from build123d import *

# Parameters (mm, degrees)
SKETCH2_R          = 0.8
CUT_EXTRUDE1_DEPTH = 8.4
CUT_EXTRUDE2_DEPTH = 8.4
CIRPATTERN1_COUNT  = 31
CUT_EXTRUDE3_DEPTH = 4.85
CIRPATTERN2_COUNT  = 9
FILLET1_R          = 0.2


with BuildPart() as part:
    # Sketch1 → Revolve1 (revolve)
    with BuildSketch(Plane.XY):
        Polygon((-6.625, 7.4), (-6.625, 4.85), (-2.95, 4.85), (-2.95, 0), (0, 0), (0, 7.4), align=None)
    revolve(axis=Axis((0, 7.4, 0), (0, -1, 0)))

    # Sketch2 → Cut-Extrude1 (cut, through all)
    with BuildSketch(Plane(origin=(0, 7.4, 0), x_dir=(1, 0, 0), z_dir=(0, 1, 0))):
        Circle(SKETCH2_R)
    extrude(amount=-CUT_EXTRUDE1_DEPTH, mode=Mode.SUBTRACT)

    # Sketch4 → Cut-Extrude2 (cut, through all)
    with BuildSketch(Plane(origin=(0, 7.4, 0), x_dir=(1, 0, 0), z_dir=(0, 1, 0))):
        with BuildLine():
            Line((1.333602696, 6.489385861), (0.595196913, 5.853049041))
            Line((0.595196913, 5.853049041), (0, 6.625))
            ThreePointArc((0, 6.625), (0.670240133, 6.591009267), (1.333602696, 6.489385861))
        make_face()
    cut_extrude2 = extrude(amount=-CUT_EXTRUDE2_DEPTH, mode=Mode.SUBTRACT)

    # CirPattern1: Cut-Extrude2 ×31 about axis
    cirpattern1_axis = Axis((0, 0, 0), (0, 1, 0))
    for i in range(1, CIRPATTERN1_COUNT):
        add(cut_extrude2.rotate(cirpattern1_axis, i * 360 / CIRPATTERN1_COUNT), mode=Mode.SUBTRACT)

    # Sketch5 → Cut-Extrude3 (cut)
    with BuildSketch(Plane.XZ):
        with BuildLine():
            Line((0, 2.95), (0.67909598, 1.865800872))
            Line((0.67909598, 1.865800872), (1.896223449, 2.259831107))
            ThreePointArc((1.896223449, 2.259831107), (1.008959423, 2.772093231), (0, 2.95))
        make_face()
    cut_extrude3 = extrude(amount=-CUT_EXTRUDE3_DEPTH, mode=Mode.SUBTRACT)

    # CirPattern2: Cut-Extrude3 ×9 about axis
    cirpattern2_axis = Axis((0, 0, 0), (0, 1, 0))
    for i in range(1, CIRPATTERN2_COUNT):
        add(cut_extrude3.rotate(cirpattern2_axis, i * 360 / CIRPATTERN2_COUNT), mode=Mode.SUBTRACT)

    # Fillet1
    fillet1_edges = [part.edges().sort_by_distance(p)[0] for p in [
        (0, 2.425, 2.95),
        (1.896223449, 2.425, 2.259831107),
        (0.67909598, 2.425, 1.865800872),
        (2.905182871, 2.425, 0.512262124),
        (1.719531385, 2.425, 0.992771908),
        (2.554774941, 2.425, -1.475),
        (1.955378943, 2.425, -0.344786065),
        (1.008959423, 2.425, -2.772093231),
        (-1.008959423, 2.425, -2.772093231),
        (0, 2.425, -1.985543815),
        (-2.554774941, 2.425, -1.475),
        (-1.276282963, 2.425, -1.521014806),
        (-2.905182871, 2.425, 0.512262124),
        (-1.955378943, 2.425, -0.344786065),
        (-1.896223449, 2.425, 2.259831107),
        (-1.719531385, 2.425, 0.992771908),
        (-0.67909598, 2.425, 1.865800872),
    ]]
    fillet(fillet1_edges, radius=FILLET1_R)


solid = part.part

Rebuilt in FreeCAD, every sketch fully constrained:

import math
import FreeCAD as App
import Part
import Sketcher


def edges_at(feature, points):
    """Names of the edges that pass closest to the given points."""
    edges = feature.Shape.Edges
    near = lambda p: min(range(len(edges)), key=lambda i: edges[i].distToShape(Part.Vertex(*p))[0])
    return sorted({f"Edge{near(p) + 1}" for p in points})

doc = App.newDocument("Part")
body = doc.addObject("PartDesign::Body", "Body")

sketch1 = body.newObject("Sketcher::SketchObject", "Sketch")
sketch1.AttachmentSupport = (doc.getObject("XY_Plane"), [""])
sketch1.MapMode = "FlatFace"
sketch1.addGeometry([
    Part.LineSegment(App.Vector(-6.6, 7.4, 0), App.Vector(-6.6, 4.8, 0)),
    Part.LineSegment(App.Vector(-6.6, 4.8, 0), App.Vector(-3, 4.8, 0)),
    Part.LineSegment(App.Vector(-3, 4.8, 0), App.Vector(-3, 0, 0)),
    Part.LineSegment(App.Vector(-3, 0, 0), App.Vector(0, 0, 0)),
    Part.LineSegment(App.Vector(0, 0, 0), App.Vector(0, 7.4, 0)),
    Part.LineSegment(App.Vector(0, 7.4, 0), App.Vector(-6.6, 7.4, 0)),
], False)
sketch1.addConstraint([
    Sketcher.Constraint("Coincident", 0, 2, 1, 1),
    Sketcher.Constraint("Coincident", 1, 2, 2, 1),
    Sketcher.Constraint("Coincident", 2, 2, 3, 1),
    Sketcher.Constraint("Coincident", 3, 2, 4, 1),
    Sketcher.Constraint("Coincident", 4, 2, 5, 1),
    Sketcher.Constraint("Coincident", 5, 2, 0, 1),
    Sketcher.Constraint("Vertical", 0),
    Sketcher.Constraint("Horizontal", 1),
    Sketcher.Constraint("Vertical", 2),
    Sketcher.Constraint("Horizontal", 3),
    Sketcher.Constraint("Vertical", 4),
    Sketcher.Constraint("Horizontal", 5),
    Sketcher.Constraint("Coincident", 3, 2, -1, 1),
    Sketcher.Constraint("DistanceY", 4, 1, 4, 2, 7.4),
    Sketcher.Constraint("DistanceX", 3, 1, 3, 2, 2.95),
    Sketcher.Constraint("DistanceY", 0, 2, 0, 1, 2.55),
    Sketcher.Constraint("DistanceX", 1, 1, 1, 2, 3.675),
])
revolution = body.newObject("PartDesign::Revolution", "Revolution")
revolution.Profile = sketch1
revolution.ReferenceAxis = (sketch1, ["V_Axis"])
revolution.Angle = 360

sketch2 = body.newObject("Sketcher::SketchObject", "Sketch001")
sketch2.AttachmentSupport = (doc.getObject("XZ_Plane"), [""])
sketch2.MapMode = "FlatFace"
sketch2.AttachmentOffset = App.Placement(App.Vector(0, 0, -7.4), App.Rotation())
sketch2.addGeometry(Part.Circle(App.Vector(0, 0, 0), App.Vector(0, 0, 1), 0.8), False)
sketch2.addConstraint([
    Sketcher.Constraint("Coincident", 0, 3, -1, 1),
    Sketcher.Constraint("Diameter", 0, 1.6),
])
pocket1 = body.newObject("PartDesign::Pocket", "Pocket")
pocket1.Profile = sketch2
pocket1.Type = "ThroughAll"
pocket1.Reversed = True

sketch3 = body.newObject("Sketcher::SketchObject", "Sketch002")
sketch3.AttachmentSupport = (doc.getObject("XZ_Plane"), [""])
sketch3.MapMode = "FlatFace"
sketch3.AttachmentOffset = App.Placement(App.Vector(0, 0, -7.4), App.Rotation())
sketch3.addGeometry([
    Part.LineSegment(App.Vector(0.6, -5.9, 0), App.Vector(1.3, -6.5, 0)),
    Part.ArcOfCircle(Part.Circle(App.Vector(0, 0, 0), App.Vector(0, 0, 1), 6.6), math.radians(-90), math.radians(-78.39)),
    Part.LineSegment(App.Vector(0, -6.6, 0), App.Vector(0.6, -5.9, 0)),
], False)
sketch3.addConstraint([
    Sketcher.Constraint("Coincident", 0, 2, 1, 2),
    Sketcher.Constraint("Coincident", 1, 1, 2, 1),
    Sketcher.Constraint("Coincident", 2, 2, 0, 1),
    Sketcher.Constraint("Coincident", 1, 3, -1, 1),
    Sketcher.Constraint("PointOnObject", 1, 1, -2),
    Sketcher.Constraint("Equal", 0, 2),
    Sketcher.Constraint("Radius", 1, 6.625),
    Sketcher.Constraint("DistanceY", 2, 2, -1, 1, 5.853049),
    Sketcher.Constraint("Distance", 0, 0.974765),
])
pocket2 = body.newObject("PartDesign::Pocket", "Pocket001")
pocket2.Profile = sketch3
pocket2.Type = "ThroughAll"
pocket2.Reversed = True
doc.recompute()

polarpattern = body.newObject("PartDesign::PolarPattern", "PolarPattern")
polarpattern.Originals = [pocket2]
polarpattern.Axis = (doc.getObject("Y_Axis"), [""])
polarpattern.Angle = 360
polarpattern.Occurrences = 31
body.Tip = polarpattern

sketch4 = body.newObject("Sketcher::SketchObject", "Sketch003")
sketch4.AttachmentSupport = (doc.getObject("XZ_Plane"), [""])
sketch4.MapMode = "FlatFace"
sketch4.addGeometry([
    Part.LineSegment(App.Vector(0, 3, 0), App.Vector(0.7, 1.9, 0)),
    Part.LineSegment(App.Vector(0.7, 1.9, 0), App.Vector(1.9, 2.3, 0)),
    Part.ArcOfCircle(Part.Circle(App.Vector(0, 0, 0), App.Vector(0, 0, 1), 3), math.radians(50), math.radians(90)),
], False)
sketch4.addConstraint([
    Sketcher.Constraint("Coincident", 0, 2, 1, 1),
    Sketcher.Constraint("Coincident", 1, 2, 2, 1),
    Sketcher.Constraint("Coincident", 2, 2, 0, 1),
    Sketcher.Constraint("Coincident", 2, 3, -1, 1),
    Sketcher.Constraint("PointOnObject", 2, 2, -2),
    Sketcher.Constraint("Equal", 0, 1),
    Sketcher.Constraint("Radius", 2, 2.95),
    Sketcher.Constraint("DistanceY", -1, 1, 0, 2, 1.865801),
    Sketcher.Constraint("Distance", 0, 1.27932),
])
pocket3 = body.newObject("PartDesign::Pocket", "Pocket002")
pocket3.Profile = sketch4
pocket3.Length = 4.85
doc.recompute()

polarpattern2 = body.newObject("PartDesign::PolarPattern", "PolarPattern001")
polarpattern2.Originals = [pocket3]
polarpattern2.Axis = (doc.getObject("Y_Axis"), [""])
polarpattern2.Angle = 360
polarpattern2.Occurrences = 9
body.Tip = polarpattern2
doc.recompute()

fillet = body.newObject("PartDesign::Fillet", "Fillet")
fillet.Base = (polarpattern2, edges_at(polarpattern2, [
    (0, 2.425, 2.95),
    (1.896, 2.425, 2.26),
    (0.679, 2.425, 1.866),
    (2.905, 2.425, 0.512),
    (1.72, 2.425, 0.993),
    (2.555, 2.425, -1.475),
    (1.955, 2.425, -0.345),
    (1.009, 2.425, -2.772),
    (-1.009, 2.425, -2.772),
    (0, 2.425, -1.986),
    (-2.555, 2.425, -1.475),
    (-1.276, 2.425, -1.521),
    (-2.905, 2.425, 0.512),
    (-1.955, 2.425, -0.345),
    (-1.896, 2.425, 2.26),
    (-1.72, 2.425, 0.993),
    (-0.679, 2.425, 1.866),
]))
fillet.Radius = 0.2

doc.recompute()
